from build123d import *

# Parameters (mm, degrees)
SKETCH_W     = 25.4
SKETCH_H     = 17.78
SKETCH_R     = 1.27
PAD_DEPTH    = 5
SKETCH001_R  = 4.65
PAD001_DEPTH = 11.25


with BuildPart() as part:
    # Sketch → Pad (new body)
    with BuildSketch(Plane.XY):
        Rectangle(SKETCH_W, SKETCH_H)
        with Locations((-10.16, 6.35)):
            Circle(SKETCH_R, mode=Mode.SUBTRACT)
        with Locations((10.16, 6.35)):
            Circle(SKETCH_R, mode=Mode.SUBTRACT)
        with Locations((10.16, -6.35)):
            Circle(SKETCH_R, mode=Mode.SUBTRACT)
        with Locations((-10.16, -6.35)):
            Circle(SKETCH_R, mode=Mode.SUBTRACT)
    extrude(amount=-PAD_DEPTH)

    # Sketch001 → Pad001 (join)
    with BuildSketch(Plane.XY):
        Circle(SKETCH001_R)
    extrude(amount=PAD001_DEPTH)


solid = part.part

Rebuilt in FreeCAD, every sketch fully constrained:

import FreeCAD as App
import Part
import Sketcher

V = App.Vector
Q = App.Units.Quantity

doc = App.newDocument("Part")
body = doc.addObject("PartDesign::Body", "Body")

# Sketch on XY plane
sketch1 = body.newObject("Sketcher::SketchObject", "Sketch")
sketch1.AttachmentSupport = (doc.getObject("XY_Plane"), [""])
sketch1.MapMode = "FlatFace"
sketch1.addGeometry([
    Part.LineSegment(V(-12.7, 8.89, 0), V(-12.7, -8.89, 0)),  # 0
    Part.LineSegment(V(-12.7, -8.89, 0), V(12.7, -8.89, 0)),  # 1
    Part.LineSegment(V(12.7, -8.89, 0), V(12.7, 8.89, 0)),  # 2
    Part.LineSegment(V(12.7, 8.89, 0), V(-12.7, 8.89, 0)),  # 3
    Part.Circle(V(-10.16, -6.35, 0), V(0, 0, 1), 1.27),  # 4
    Part.Circle(V(10.16, -6.35, 0), V(0, 0, 1), 1.27),  # 5
    Part.Circle(V(-10.16, 6.35, 0), V(0, 0, 1), 1.27),  # 6
    Part.Circle(V(10.16, 6.35, 0), V(0, 0, 1), 1.27),  # 7
], False)
sketch1.addConstraint([
    Sketcher.Constraint("Coincident", 0, 2, 1, 1),
    Sketcher.Constraint("Coincident", 1, 2, 2, 1),
    Sketcher.Constraint("Coincident", 2, 2, 3, 1),
    Sketcher.Constraint("Coincident", 3, 2, 0, 1),
    Sketcher.Constraint("Vertical", 0),
    Sketcher.Constraint("Horizontal", 1),
    Sketcher.Constraint("Vertical", 2),
    Sketcher.Constraint("Horizontal", 3),
    Sketcher.Constraint("Equal", 4, 5),
    Sketcher.Constraint("Equal", 5, 6),
    Sketcher.Constraint("Equal", 6, 7),
    Sketcher.Constraint("Symmetric", 5, 3, 6, 3, -1, 1),
    Sketcher.Constraint("Symmetric", 4, 3, 7, 3, -1, 1),
    Sketcher.Constraint("Symmetric", 0, 2, 2, 2, -1, 1),
    Sketcher.Constraint("Symmetric", 4, 3, 5, 3, -2),
    Sketcher.Constraint("Diameter", 4, Q("0.1 in")),
    Sketcher.Constraint("DistanceX", 1, 1, 1, 2, Q("1 in")),
    Sketcher.Constraint("DistanceY", 0, 2, 0, 1, Q("0.7 in")),
    Sketcher.Constraint("DistanceX", 4, 3, -1, 1, Q("0.4 in")),
    Sketcher.Constraint("DistanceY", 4, 3, 6, 3, Q("0.5 in")),
])
pad1 = body.newObject("PartDesign::Pad", "Pad")
pad1.Profile = sketch1
pad1.Length = 5
pad1.Reversed = True

# Sketch on XY plane
sketch2 = body.newObject("Sketcher::SketchObject", "Sketch001")
sketch2.AttachmentSupport = (doc.getObject("XY_Plane"), [""])
sketch2.MapMode = "FlatFace"
sketch2.addGeometry(Part.Circle(V(0, 0, 0), V(0, 0, 1), 4.65), False)
sketch2.addConstraint([
    Sketcher.Constraint("Coincident", 0, 3, -1, 1),
    Sketcher.Constraint("Diameter", 0, 9.3),
])
pad2 = body.newObject("PartDesign::Pad", "Pad001")
pad2.Profile = sketch2
pad2.Length = 11.25

doc.recompute()
